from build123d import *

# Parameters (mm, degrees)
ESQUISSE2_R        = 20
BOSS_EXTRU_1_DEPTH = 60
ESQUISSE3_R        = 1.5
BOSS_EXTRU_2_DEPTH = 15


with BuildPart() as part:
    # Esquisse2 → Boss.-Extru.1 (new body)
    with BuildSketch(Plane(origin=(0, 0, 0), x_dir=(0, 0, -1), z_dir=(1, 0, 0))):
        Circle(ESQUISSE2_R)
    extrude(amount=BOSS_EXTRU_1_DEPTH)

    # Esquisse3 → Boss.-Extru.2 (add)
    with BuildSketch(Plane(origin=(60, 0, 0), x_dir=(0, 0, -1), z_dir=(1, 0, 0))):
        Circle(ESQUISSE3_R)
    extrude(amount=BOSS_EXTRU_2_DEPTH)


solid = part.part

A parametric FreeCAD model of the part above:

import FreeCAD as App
import Part
import Sketcher
Q = App.Units.Quantity

doc = App.newDocument("Part")
body = doc.addObject("PartDesign::Body", "Body")

sketch1 = body.newObject("Sketcher::SketchObject", "Sketch")
sketch1.AttachmentSupport = (doc.getObject("YZ_Plane"), [""])
sketch1.MapMode = "FlatFace"
sketch1.addGeometry(Part.Circle(App.Vector(0, 0, 0), App.Vector(0, 0, 1), 20), False)
sketch1.addConstraint(Sketcher.Constraint("Coincident", 0, 3, -1, 1))
sketch1.addConstraint(Sketcher.Constraint("Diameter", 0, Q("40 mm")))
pad1 = body.newObject("PartDesign::Pad", "Pad")
pad1.Profile = sketch1
pad1.Length = 60

sketch2 = body.newObject("Sketcher::SketchObject", "Sketch001")
sketch2.AttachmentSupport = (doc.getObject("YZ_Plane"), [""])
sketch2.MapMode = "FlatFace"
sketch2.AttachmentOffset = App.Placement(App.Vector(0, 0, 60), App.Rotation())
sketch2.addGeometry(Part.Circle(App.Vector(0, 0, 0), App.Vector(0, 0, 1), 1.5), False)
sketch2.addConstraint(Sketcher.Constraint("Coincident", 0, 3, -1, 1))
sketch2.addConstraint(Sketcher.Constraint("Diameter", 0, Q("3 mm")))
pad2 = body.newObject("PartDesign::Pad", "Pad001")
pad2.Profile = sketch2
pad2.Length = 15

doc.recompute()
